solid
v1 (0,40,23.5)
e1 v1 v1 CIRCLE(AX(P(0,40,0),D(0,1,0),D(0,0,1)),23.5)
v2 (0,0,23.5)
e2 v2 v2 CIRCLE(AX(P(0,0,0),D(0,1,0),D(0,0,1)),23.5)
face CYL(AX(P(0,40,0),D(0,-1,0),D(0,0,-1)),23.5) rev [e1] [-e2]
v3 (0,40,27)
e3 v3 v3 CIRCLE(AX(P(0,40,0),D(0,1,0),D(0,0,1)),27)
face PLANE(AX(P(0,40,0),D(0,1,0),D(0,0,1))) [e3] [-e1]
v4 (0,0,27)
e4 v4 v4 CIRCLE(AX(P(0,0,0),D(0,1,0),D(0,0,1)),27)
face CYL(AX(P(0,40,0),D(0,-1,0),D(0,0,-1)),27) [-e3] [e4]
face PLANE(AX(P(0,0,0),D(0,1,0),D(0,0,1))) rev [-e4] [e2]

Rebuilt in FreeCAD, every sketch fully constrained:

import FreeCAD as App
import Part
import Sketcher

V = App.Vector
Q = App.Units.Quantity

doc = App.newDocument("Part")
body = doc.addObject("PartDesign::Body", "Body")

# Sketch on XZ plane
sketch1 = body.newObject("Sketcher::SketchObject", "Sketch")
sketch1.AttachmentSupport = (doc.getObject("XZ_Plane"), [""])
sketch1.MapMode = "FlatFace"
sketch1.addGeometry(Part.Circle(V(0, 0, 0), V(0, 0, 1), 27), False)
sketch1.addGeometry(Part.Circle(V(0, 0, 0), V(0, 0, 1), 24), False)
sketch1.addConstraint(Sketcher.Constraint("Coincident", 0, 3, -1, 1))
sketch1.addConstraint(Sketcher.Constraint("Coincident", 1, 3, -1, 1))
sketch1.addConstraint(Sketcher.Constraint("Diameter", 0, Q("54 mm")))
sketch1.addConstraint(Sketcher.Constraint("Diameter", 1, Q("47 mm")))
pad1 = body.newObject("PartDesign::Pad", "Pad")
pad1.Profile = sketch1
pad1.Length = 40
pad1.Reversed = True

doc.recompute()
